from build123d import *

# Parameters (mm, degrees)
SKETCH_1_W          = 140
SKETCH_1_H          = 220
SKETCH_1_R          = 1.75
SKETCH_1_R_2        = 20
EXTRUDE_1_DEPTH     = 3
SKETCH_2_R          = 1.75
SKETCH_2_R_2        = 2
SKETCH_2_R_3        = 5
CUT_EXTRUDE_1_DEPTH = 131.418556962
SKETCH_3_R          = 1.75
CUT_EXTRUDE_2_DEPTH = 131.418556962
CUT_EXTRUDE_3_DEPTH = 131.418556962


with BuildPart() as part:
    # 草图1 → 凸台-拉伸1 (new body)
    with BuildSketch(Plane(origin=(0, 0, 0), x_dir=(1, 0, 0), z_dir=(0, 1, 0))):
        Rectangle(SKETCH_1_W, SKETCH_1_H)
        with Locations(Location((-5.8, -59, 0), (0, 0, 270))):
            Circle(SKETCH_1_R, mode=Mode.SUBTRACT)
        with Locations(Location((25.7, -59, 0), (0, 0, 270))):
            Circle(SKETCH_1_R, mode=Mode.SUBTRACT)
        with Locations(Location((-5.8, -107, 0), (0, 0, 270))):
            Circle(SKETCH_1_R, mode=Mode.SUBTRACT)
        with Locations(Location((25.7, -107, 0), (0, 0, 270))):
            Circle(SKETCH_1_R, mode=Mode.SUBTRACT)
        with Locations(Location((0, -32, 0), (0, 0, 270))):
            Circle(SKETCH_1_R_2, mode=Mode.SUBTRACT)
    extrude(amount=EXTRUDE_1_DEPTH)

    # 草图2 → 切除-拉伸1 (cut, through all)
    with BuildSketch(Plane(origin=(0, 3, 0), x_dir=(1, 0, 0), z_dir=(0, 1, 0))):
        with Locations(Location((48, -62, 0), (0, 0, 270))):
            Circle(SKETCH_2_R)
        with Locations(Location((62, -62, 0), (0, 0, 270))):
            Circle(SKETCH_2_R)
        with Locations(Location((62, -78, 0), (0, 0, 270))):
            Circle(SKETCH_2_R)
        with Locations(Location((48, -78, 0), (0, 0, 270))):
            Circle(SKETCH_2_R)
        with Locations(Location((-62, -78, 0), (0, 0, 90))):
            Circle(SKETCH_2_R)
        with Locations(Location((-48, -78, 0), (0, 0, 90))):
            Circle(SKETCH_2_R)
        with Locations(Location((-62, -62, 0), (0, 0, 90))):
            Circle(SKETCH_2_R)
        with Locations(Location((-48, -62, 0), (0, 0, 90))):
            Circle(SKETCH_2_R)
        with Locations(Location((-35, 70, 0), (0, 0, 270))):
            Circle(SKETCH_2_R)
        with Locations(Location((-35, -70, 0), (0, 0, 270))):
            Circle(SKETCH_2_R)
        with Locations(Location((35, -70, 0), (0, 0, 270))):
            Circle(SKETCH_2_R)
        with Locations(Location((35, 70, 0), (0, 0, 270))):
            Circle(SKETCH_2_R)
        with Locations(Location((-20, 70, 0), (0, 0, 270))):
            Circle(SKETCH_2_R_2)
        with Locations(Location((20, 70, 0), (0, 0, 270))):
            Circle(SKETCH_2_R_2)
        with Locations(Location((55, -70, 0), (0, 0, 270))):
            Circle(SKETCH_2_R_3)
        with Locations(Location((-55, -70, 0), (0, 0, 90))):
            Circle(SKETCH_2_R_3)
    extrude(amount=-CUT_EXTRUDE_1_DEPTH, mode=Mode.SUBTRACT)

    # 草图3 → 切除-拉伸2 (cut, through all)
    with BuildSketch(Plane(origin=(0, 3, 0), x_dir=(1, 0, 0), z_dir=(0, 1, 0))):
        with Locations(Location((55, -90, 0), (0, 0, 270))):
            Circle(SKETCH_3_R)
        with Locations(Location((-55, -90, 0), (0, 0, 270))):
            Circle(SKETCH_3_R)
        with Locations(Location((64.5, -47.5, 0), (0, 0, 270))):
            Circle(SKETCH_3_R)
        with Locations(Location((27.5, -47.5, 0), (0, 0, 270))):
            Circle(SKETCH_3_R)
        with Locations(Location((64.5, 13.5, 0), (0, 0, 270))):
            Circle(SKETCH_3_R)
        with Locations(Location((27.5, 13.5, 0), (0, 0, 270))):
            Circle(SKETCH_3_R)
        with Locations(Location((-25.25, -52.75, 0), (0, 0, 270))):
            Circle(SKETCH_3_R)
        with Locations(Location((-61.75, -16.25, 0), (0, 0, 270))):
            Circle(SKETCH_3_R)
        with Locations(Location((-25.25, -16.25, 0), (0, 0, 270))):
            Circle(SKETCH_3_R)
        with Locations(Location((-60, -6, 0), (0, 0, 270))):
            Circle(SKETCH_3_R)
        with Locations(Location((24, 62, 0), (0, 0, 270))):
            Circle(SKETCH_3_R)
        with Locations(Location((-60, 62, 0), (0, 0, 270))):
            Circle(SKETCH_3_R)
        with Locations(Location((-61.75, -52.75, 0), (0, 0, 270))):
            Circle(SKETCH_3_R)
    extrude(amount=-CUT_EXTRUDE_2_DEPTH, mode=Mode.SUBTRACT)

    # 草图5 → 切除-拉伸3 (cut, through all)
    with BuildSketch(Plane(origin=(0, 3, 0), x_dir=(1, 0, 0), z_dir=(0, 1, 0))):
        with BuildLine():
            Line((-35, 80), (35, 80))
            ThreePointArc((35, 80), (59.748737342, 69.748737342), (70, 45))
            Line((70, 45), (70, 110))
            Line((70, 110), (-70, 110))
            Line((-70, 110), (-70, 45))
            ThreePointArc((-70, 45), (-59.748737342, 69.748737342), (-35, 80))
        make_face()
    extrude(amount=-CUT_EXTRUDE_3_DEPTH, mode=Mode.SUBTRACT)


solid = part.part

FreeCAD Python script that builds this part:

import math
import FreeCAD as App
import Part
import Sketcher
Q = App.Units.Quantity


def add_polygon(sketch, points):
    """Adds a closed chain of lines whose ends are joined by coincident constraints."""
    first, n = sketch.GeometryCount, len(points)
    for a, b in zip(points, points[1:] + points[:1]):
        sketch.addGeometry(Part.LineSegment(App.Vector(*a, 0), App.Vector(*b, 0)), False)
    for i in range(n):
        sketch.addConstraint(Sketcher.Constraint("Coincident", first + i, 2, first + (i + 1) % n, 1))

doc = App.newDocument("Part")
params = doc.addObject("Spreadsheet::Sheet", "Params")
for row, (alias, value) in enumerate([
    ("sketch1_diameter", "40 mm"),
    ("sketch1_diameter2", "3.5 mm"),
    ("sketch1_width", "140 mm"),
    ("sketch1_height", "220 mm"),
    ("pad1_length", "3 mm"),
    ("sketch2_diameter", "4 mm"),
    ("sketch2_diameter2", "10 mm"),
    ("sketch2_diameter3", "3.5 mm"),
    ("sketch3_diameter", "3.5 mm"),
    ("sketch4_radius", "35 mm"),
    ("sketch4_width", "70 mm"),
    ("sketch4_height", "65 mm"),
], start=1):
    params.set(f"A{row}", alias)
    params.set(f"B{row}", "=" + value)
    params.setAlias(f"B{row}", alias)

body = doc.addObject("PartDesign::Body", "Body")

# Sketch on XZ plane
sketch1 = doc.addObject("Sketcher::SketchObject", "Sketch")
body.addObject(sketch1)
sketch1.AttachmentSupport = (doc.XZ_Plane, [""])
sketch1.MapMode = "FlatFace"
add_polygon(sketch1, [(-70, -110), (-70, 110), (70, 110), (70, -110)])  # lines 0-3
sketch1.addGeometry(Part.Circle(App.Vector(-5.8, 107, 0), App.Vector(0, 0, 1), 1.8), False)  # 4
sketch1.addGeometry(Part.Circle(App.Vector(25.7, 107, 0), App.Vector(0, 0, 1), 1.8), False)  # 5
sketch1.addGeometry(Part.Circle(App.Vector(-5.8, 59, 0), App.Vector(0, 0, 1), 1.8), False)  # 6
sketch1.addGeometry(Part.Circle(App.Vector(0, 32, 0), App.Vector(0, 0, 1), 20), False)  # 7
sketch1.addGeometry(Part.Circle(App.Vector(25.7, 59, 0), App.Vector(0, 0, 1), 1.8), False)  # 8
sketch1.addConstraint(Sketcher.Constraint("Vertical", 0))
sketch1.addConstraint(Sketcher.Constraint("Horizontal", 1))
sketch1.addConstraint(Sketcher.Constraint("Vertical", 2))
sketch1.addConstraint(Sketcher.Constraint("Horizontal", 3))
sketch1.addConstraint(Sketcher.Constraint("Equal", 4, 5))
sketch1.addConstraint(Sketcher.Constraint("Equal", 5, 6))
sketch1.addConstraint(Sketcher.Constraint("Equal", 6, 8))
sketch1.addConstraint(Sketcher.Constraint("Symmetric", 0, 2, 2, 2, -1, 1))
sketch1.addConstraint(Sketcher.Constraint("PointOnObject", 7, 3, -2))
sketch1.addConstraint(Sketcher.Constraint("Horizontal", 4, 3, 5, 3))
sketch1.addConstraint(Sketcher.Constraint("Horizontal", 6, 3, 8, 3))
sketch1.addConstraint(Sketcher.Constraint("Vertical", 4, 3, 6, 3))
sketch1.addConstraint(Sketcher.Constraint("Vertical", 5, 3, 8, 3))
sketch1.addConstraint(Sketcher.Constraint("Diameter", 7, Q("40 mm")))
sketch1.addConstraint(Sketcher.Constraint("Diameter", 4, Q("3.5 mm")))
sketch1.addConstraint(Sketcher.Constraint("DistanceX", 1, 1, 1, 2, Q("140 mm")))
sketch1.addConstraint(Sketcher.Constraint("DistanceY", 0, 1, 0, 2, Q("220 mm")))
sketch1.addConstraint(Sketcher.Constraint("DistanceY", -1, 1, 4, 3, Q("107 mm")))
sketch1.addConstraint(Sketcher.Constraint("DistanceY", -1, 1, 6, 3, Q("59 mm")))
sketch1.addConstraint(Sketcher.Constraint("DistanceY", -1, 1, 7, 3, Q("32 mm")))
sketch1.addConstraint(Sketcher.Constraint("DistanceX", 4, 3, -1, 1, Q("5.8 mm")))
sketch1.addConstraint(Sketcher.Constraint("DistanceX", -1, 1, 5, 3, Q("25.7 mm")))
sketch1.setExpression("Constraints[17]", "Params.sketch1_diameter")
sketch1.setExpression("Constraints[18]", "Params.sketch1_diameter2")
sketch1.setExpression("Constraints[19]", "Params.sketch1_width")
sketch1.setExpression("Constraints[20]", "Params.sketch1_height")
pad1 = doc.addObject("PartDesign::Pad", "Pad")
body.addObject(pad1)
pad1.Profile = sketch1
pad1.setExpression("Length", "Params.pad1_length")
pad1.Reversed = True

# Sketch on XZ plane
sketch2 = doc.addObject("Sketcher::SketchObject", "Sketch001")
body.addObject(sketch2)
sketch2.AttachmentSupport = (doc.XZ_Plane, [""])
sketch2.MapMode = "FlatFace"
sketch2.AttachmentOffset = App.Placement(App.Vector(0, 0, -3), App.Rotation())
sketch2.addGeometry(Part.Circle(App.Vector(48, 62, 0), App.Vector(0, 0, 1), 1.8), False)
sketch2.addGeometry(Part.Circle(App.Vector(62, 62, 0), App.Vector(0, 0, 1), 1.8), False)
sketch2.addGeometry(Part.Circle(App.Vector(62, 78, 0), App.Vector(0, 0, 1), 1.8), False)
sketch2.addGeometry(Part.Circle(App.Vector(48, 78, 0), App.Vector(0, 0, 1), 1.8), False)
sketch2.addGeometry(Part.Circle(App.Vector(-62, 78, 0), App.Vector(0, 0, 1), 1.8), False)
sketch2.addGeometry(Part.Circle(App.Vector(-48, 78, 0), App.Vector(0, 0, 1), 1.8), False)
sketch2.addGeometry(Part.Circle(App.Vector(-62, 62, 0), App.Vector(0, 0, 1), 1.8), False)
sketch2.addGeometry(Part.Circle(App.Vector(-48, 62, 0), App.Vector(0, 0, 1), 1.8), False)
sketch2.addGeometry(Part.Circle(App.Vector(-35, -70, 0), App.Vector(0, 0, 1), 1.8), False)
sketch2.addGeometry(Part.Circle(App.Vector(-35, 70, 0), App.Vector(0, 0, 1), 1.8), False)
sketch2.addGeometry(Part.Circle(App.Vector(35, 70, 0), App.Vector(0, 0, 1), 1.8), False)
sketch2.addGeometry(Part.Circle(App.Vector(35, -70, 0), App.Vector(0, 0, 1), 1.8), False)
sketch2.addGeometry(Part.Circle(App.Vector(-20, -70, 0), App.Vector(0, 0, 1), 2), False)
sketch2.addGeometry(Part.Circle(App.Vector(20, -70, 0), App.Vector(0, 0, 1), 2), False)
sketch2.addGeometry(Part.Circle(App.Vector(55, 70, 0), App.Vector(0, 0, 1), 5), False)
sketch2.addGeometry(Part.Circle(App.Vector(-55, 70, 0), App.Vector(0, 0, 1), 5), False)
sketch2.addConstraint(Sketcher.Constraint("Equal", 0, 1))
sketch2.addConstraint(Sketcher.Constraint("Equal", 1, 2))
sketch2.addConstraint(Sketcher.Constraint("Equal", 2, 3))
sketch2.addConstraint(Sketcher.Constraint("Equal", 3, 4))
sketch2.addConstraint(Sketcher.Constraint("Equal", 4, 5))
sketch2.addConstraint(Sketcher.Constraint("Equal", 5, 6))
sketch2.addConstraint(Sketcher.Constraint("Equal", 6, 7))
sketch2.addConstraint(Sketcher.Constraint("Equal", 7, 8))
sketch2.addConstraint(Sketcher.Constraint("Equal", 8, 9))
sketch2.addConstraint(Sketcher.Constraint("Equal", 9, 10))
sketch2.addConstraint(Sketcher.Constraint("Equal", 10, 11))
sketch2.addConstraint(Sketcher.Constraint("Equal", 12, 13))
sketch2.addConstraint(Sketcher.Constraint("Equal", 14, 15))
sketch2.addConstraint(Sketcher.Constraint("Symmetric", 8, 3, 10, 3, -1, 1))
sketch2.addConstraint(Sketcher.Constraint("Symmetric", 9, 3, 11, 3, -1, 1))
sketch2.addConstraint(Sketcher.Constraint("Symmetric", 2, 3, 4, 3, -2))
sketch2.addConstraint(Sketcher.Constraint("Symmetric", 3, 3, 5, 3, -2))
sketch2.addConstraint(Sketcher.Constraint("Symmetric", 1, 3, 6, 3, -2))
sketch2.addConstraint(Sketcher.Constraint("Symmetric", 0, 3, 7, 3, -2))
sketch2.addConstraint(Sketcher.Constraint("Symmetric", 9, 3, 10, 3, -2))
sketch2.addConstraint(Sketcher.Constraint("Symmetric", 12, 3, 13, 3, -2))
sketch2.addConstraint(Sketcher.Constraint("Symmetric", 14, 3, 15, 3, -2))
sketch2.addConstraint(Sketcher.Constraint("Horizontal", 0, 3, 1, 3))
sketch2.addConstraint(Sketcher.Constraint("Horizontal", 2, 3, 3, 3))
sketch2.addConstraint(Sketcher.Constraint("Horizontal", 11, 3, 12, 3))
sketch2.addConstraint(Sketcher.Constraint("Horizontal", 10, 3, 14, 3))
sketch2.addConstraint(Sketcher.Constraint("Vertical", 1, 3, 2, 3))
sketch2.addConstraint(Sketcher.Constraint("Vertical", 0, 3, 3, 3))
sketch2.addConstraint(Sketcher.Constraint("Diameter", 12, Q("4 mm")))
sketch2.addConstraint(Sketcher.Constraint("Diameter", 14, Q("10 mm")))
sketch2.addConstraint(Sketcher.Constraint("Diameter", 0, Q("3.5 mm")))
sketch2.addConstraint(Sketcher.Constraint("DistanceX", -1, 1, 0, 3, Q("48 mm")))
sketch2.addConstraint(Sketcher.Constraint("DistanceY", -1, 1, 0, 3, Q("62 mm")))
sketch2.addConstraint(Sketcher.Constraint("DistanceX", -1, 1, 1, 3, Q("62 mm")))
sketch2.addConstraint(Sketcher.Constraint("DistanceY", -1, 1, 2, 3, Q("78 mm")))
sketch2.addConstraint(Sketcher.Constraint("DistanceX", 8, 3, -1, 1, Q("35 mm")))
sketch2.addConstraint(Sketcher.Constraint("DistanceY", 8, 3, -1, 1, Q("70 mm")))
sketch2.addConstraint(Sketcher.Constraint("DistanceX", 12, 3, -1, 1, Q("20 mm")))
sketch2.addConstraint(Sketcher.Constraint("DistanceX", -1, 1, 14, 3, Q("55 mm")))
sketch2.setExpression("Constraints[28]", "Params.sketch2_diameter")
sketch2.setExpression("Constraints[29]", "Params.sketch2_diameter2")
sketch2.setExpression("Constraints[30]", "Params.sketch2_diameter3")
pocket1 = doc.addObject("PartDesign::Pocket", "Pocket")
body.addObject(pocket1)
pocket1.Profile = sketch2
pocket1.Type = "ThroughAll"
pocket1.Reversed = True

# Sketch on XZ plane
sketch3 = doc.addObject("Sketcher::SketchObject", "Sketch002")
body.addObject(sketch3)
sketch3.AttachmentSupport = (doc.XZ_Plane, [""])
sketch3.MapMode = "FlatFace"
sketch3.AttachmentOffset = App.Placement(App.Vector(0, 0, -3), App.Rotation())
sketch3.addGeometry(Part.Circle(App.Vector(55, 90, 0), App.Vector(0, 0, 1), 1.8), False)
sketch3.addGeometry(Part.Circle(App.Vector(-55, 90, 0), App.Vector(0, 0, 1), 1.8), False)
sketch3.addGeometry(Part.Circle(App.Vector(64.5, 47.5, 0), App.Vector(0, 0, 1), 1.8), False)
sketch3.addGeometry(Part.Circle(App.Vector(27.5, 47.5, 0), App.Vector(0, 0, 1), 1.8), False)
sketch3.addGeometry(Part.Circle(App.Vector(64.5, -13.5, 0), App.Vector(0, 0, 1), 1.8), False)
sketch3.addGeometry(Part.Circle(App.Vector(27.5, -13.5, 0), App.Vector(0, 0, 1), 1.8), False)
sketch3.addGeometry(Part.Circle(App.Vector(-25.2, 52.8, 0), App.Vector(0, 0, 1), 1.8), False)
sketch3.addGeometry(Part.Circle(App.Vector(-61.8, 16.2, 0), App.Vector(0, 0, 1), 1.8), False)
sketch3.addGeometry(Part.Circle(App.Vector(-25.2, 16.2, 0), App.Vector(0, 0, 1), 1.8), False)
sketch3.addGeometry(Part.Circle(App.Vector(-60, 6, 0), App.Vector(0, 0, 1), 1.8), False)
sketch3.addGeometry(Part.Circle(App.Vector(24, -62, 0), App.Vector(0, 0, 1), 1.8), False)
sketch3.addGeometry(Part.Circle(App.Vector(-60, -62, 0), App.Vector(0, 0, 1), 1.8), False)
sketch3.addGeometry(Part.Circle(App.Vector(-61.8, 52.8, 0), App.Vector(0, 0, 1), 1.8), False)
sketch3.addConstraint(Sketcher.Constraint("Equal", 0, 1))
sketch3.addConstraint(Sketcher.Constraint("Equal", 1, 2))
sketch3.addConstraint(Sketcher.Constraint("Equal", 2, 3))
sketch3.addConstraint(Sketcher.Constraint("Equal", 3, 4))
sketch3.addConstraint(Sketcher.Constraint("Equal", 4, 5))
sketch3.addConstraint(Sketcher.Constraint("Equal", 5, 6))
sketch3.addConstraint(Sketcher.Constraint("Equal", 6, 7))
sketch3.addConstraint(Sketcher.Constraint("Equal", 7, 8))
sketch3.addConstraint(Sketcher.Constraint("Equal", 8, 9))
sketch3.addConstraint(Sketcher.Constraint("Equal", 9, 10))
sketch3.addConstraint(Sketcher.Constraint("Equal", 10, 11))
sketch3.addConstraint(Sketcher.Constraint("Equal", 11, 12))
sketch3.addConstraint(Sketcher.Constraint("Symmetric", 0, 3, 1, 3, -2))
sketch3.addConstraint(Sketcher.Constraint("Horizontal", 2, 3, 3, 3))
sketch3.addConstraint(Sketcher.Constraint("Horizontal", 4, 3, 5, 3))
sketch3.addConstraint(Sketcher.Constraint("Horizontal", 7, 3, 8, 3))
sketch3.addConstraint(Sketcher.Constraint("Horizontal", 10, 3, 11, 3))
sketch3.addConstraint(Sketcher.Constraint("Horizontal", 6, 3, 12, 3))
sketch3.addConstraint(Sketcher.Constraint("Vertical", 2, 3, 4, 3))
sketch3.addConstraint(Sketcher.Constraint("Vertical", 3, 3, 5, 3))
sketch3.addConstraint(Sketcher.Constraint("Vertical", 6, 3, 8, 3))
sketch3.addConstraint(Sketcher.Constraint("Vertical", 9, 3, 11, 3))
sketch3.addConstraint(Sketcher.Constraint("Vertical", 7, 3, 12, 3))
sketch3.addConstraint(Sketcher.Constraint("Diameter", 0, Q("3.5 mm")))
sketch3.addConstraint(Sketcher.Constraint("DistanceX", -1, 1, 0, 3, Q("55 mm")))
sketch3.addConstraint(Sketcher.Constraint("DistanceY", -1, 1, 0, 3, Q("90 mm")))
sketch3.addConstraint(Sketcher.Constraint("DistanceX", 9, 3, -1, 1, Q("60 mm")))
sketch3.addConstraint(Sketcher.Constraint("DistanceY", -1, 1, 9, 3, Q("6 mm")))
sketch3.addConstraint(Sketcher.Constraint("DistanceX", -1, 1, 10, 3, Q("24 mm")))
sketch3.addConstraint(Sketcher.Constraint("DistanceY", 10, 3, -1, 1, Q("62 mm")))
sketch3.addConstraint(Sketcher.Constraint("DistanceX", 3, 3, 2, 3, Q("37 mm")))
sketch3.addConstraint(Sketcher.Constraint("DistanceY", 4, 3, 2, 3, Q("61 mm")))
sketch3.addConstraint(Sketcher.Constraint("DistanceX", -1, 1, 2, 3, Q("64.5 mm")))
sketch3.addConstraint(Sketcher.Constraint("DistanceY", -1, 1, 2, 3, Q("47.5 mm")))
sketch3.addConstraint(Sketcher.Constraint("DistanceX", 7, 3, 6, 3, Q("36.5 mm")))
sketch3.addConstraint(Sketcher.Constraint("DistanceY", 7, 3, 6, 3, Q("36.5 mm")))
sketch3.addConstraint(Sketcher.Constraint("DistanceX", 6, 3, -1, 1, Q("25.25 mm")))
sketch3.addConstraint(Sketcher.Constraint("DistanceY", -1, 1, 6, 3, Q("52.75 mm")))
sketch3.setExpression("Constraints[23]", "Params.sketch3_diameter")
pocket2 = doc.addObject("PartDesign::Pocket", "Pocket001")
body.addObject(pocket2)
pocket2.Profile = sketch3
pocket2.Type = "ThroughAll"
pocket2.Reversed = True

# Sketch on XZ plane
sketch4 = doc.addObject("Sketcher::SketchObject", "Sketch003")
body.addObject(sketch4)
sketch4.AttachmentSupport = (doc.XZ_Plane, [""])
sketch4.MapMode = "FlatFace"
sketch4.AttachmentOffset = App.Placement(App.Vector(0, 0, -3), App.Rotation())
sketch4.addGeometry(Part.LineSegment(App.Vector(-35, -80, 0), App.Vector(35, -80, 0)), False)
sketch4.addGeometry(Part.ArcOfCircle(Part.Circle(App.Vector(35, -45, 0), App.Vector(0, 0, 1), 35), math.radians(-90), math.radians(0)), False)
sketch4.addGeometry(Part.LineSegment(App.Vector(70, -45, 0), App.Vector(70, -110, 0)), False)
sketch4.addGeometry(Part.LineSegment(App.Vector(70, -110, 0), App.Vector(-70, -110, 0)), False)
sketch4.addGeometry(Part.LineSegment(App.Vector(-70, -110, 0), App.Vector(-70, -45, 0)), False)
sketch4.addGeometry(Part.ArcOfCircle(Part.Circle(App.Vector(-35, -45, 0), App.Vector(0, 0, 1), 35), math.radians(180), math.radians(270)), False)
sketch4.addConstraint(Sketcher.Constraint("Tangent", 0, 2, 1, 1))
sketch4.addConstraint(Sketcher.Constraint("Tangent", 1, 2, 2, 1))
sketch4.addConstraint(Sketcher.Constraint("Coincident", 2, 2, 3, 1))
sketch4.addConstraint(Sketcher.Constraint("Coincident", 3, 2, 4, 1))
sketch4.addConstraint(Sketcher.Constraint("Tangent", 4, 2, 5, 1))
sketch4.addConstraint(Sketcher.Constraint("Tangent", 5, 2, 0, 1))
sketch4.addConstraint(Sketcher.Constraint("Horizontal", 0))
sketch4.addConstraint(Sketcher.Constraint("Vertical", 2))
sketch4.addConstraint(Sketcher.Constraint("Horizontal", 3))
sketch4.addConstraint(Sketcher.Constraint("Vertical", 4))
sketch4.addConstraint(Sketcher.Constraint("Equal", 1, 5))
sketch4.addConstraint(Sketcher.Constraint("Radius", 1, Q("35 mm")))
sketch4.addConstraint(Sketcher.Constraint("DistanceX", 0, 1, 0, 2, Q("70 mm")))
sketch4.addConstraint(Sketcher.Constraint("DistanceY", 2, 2, 2, 1, Q("65 mm")))
sketch4.addConstraint(Sketcher.Constraint("DistanceX", -1, 1, 1, 3, Q("35 mm")))
sketch4.addConstraint(Sketcher.Constraint("DistanceY", 1, 3, -1, 1, Q("45 mm")))
sketch4.setExpression("Constraints[11]", "Params.sketch4_radius")
sketch4.setExpression("Constraints[12]", "Params.sketch4_width")
sketch4.setExpression("Constraints[13]", "Params.sketch4_height")
pocket3 = doc.addObject("PartDesign::Pocket", "Pocket002")
body.addObject(pocket3)
pocket3.Profile = sketch4
pocket3.Type = "ThroughAll"
pocket3.Reversed = True

doc.recompute()
